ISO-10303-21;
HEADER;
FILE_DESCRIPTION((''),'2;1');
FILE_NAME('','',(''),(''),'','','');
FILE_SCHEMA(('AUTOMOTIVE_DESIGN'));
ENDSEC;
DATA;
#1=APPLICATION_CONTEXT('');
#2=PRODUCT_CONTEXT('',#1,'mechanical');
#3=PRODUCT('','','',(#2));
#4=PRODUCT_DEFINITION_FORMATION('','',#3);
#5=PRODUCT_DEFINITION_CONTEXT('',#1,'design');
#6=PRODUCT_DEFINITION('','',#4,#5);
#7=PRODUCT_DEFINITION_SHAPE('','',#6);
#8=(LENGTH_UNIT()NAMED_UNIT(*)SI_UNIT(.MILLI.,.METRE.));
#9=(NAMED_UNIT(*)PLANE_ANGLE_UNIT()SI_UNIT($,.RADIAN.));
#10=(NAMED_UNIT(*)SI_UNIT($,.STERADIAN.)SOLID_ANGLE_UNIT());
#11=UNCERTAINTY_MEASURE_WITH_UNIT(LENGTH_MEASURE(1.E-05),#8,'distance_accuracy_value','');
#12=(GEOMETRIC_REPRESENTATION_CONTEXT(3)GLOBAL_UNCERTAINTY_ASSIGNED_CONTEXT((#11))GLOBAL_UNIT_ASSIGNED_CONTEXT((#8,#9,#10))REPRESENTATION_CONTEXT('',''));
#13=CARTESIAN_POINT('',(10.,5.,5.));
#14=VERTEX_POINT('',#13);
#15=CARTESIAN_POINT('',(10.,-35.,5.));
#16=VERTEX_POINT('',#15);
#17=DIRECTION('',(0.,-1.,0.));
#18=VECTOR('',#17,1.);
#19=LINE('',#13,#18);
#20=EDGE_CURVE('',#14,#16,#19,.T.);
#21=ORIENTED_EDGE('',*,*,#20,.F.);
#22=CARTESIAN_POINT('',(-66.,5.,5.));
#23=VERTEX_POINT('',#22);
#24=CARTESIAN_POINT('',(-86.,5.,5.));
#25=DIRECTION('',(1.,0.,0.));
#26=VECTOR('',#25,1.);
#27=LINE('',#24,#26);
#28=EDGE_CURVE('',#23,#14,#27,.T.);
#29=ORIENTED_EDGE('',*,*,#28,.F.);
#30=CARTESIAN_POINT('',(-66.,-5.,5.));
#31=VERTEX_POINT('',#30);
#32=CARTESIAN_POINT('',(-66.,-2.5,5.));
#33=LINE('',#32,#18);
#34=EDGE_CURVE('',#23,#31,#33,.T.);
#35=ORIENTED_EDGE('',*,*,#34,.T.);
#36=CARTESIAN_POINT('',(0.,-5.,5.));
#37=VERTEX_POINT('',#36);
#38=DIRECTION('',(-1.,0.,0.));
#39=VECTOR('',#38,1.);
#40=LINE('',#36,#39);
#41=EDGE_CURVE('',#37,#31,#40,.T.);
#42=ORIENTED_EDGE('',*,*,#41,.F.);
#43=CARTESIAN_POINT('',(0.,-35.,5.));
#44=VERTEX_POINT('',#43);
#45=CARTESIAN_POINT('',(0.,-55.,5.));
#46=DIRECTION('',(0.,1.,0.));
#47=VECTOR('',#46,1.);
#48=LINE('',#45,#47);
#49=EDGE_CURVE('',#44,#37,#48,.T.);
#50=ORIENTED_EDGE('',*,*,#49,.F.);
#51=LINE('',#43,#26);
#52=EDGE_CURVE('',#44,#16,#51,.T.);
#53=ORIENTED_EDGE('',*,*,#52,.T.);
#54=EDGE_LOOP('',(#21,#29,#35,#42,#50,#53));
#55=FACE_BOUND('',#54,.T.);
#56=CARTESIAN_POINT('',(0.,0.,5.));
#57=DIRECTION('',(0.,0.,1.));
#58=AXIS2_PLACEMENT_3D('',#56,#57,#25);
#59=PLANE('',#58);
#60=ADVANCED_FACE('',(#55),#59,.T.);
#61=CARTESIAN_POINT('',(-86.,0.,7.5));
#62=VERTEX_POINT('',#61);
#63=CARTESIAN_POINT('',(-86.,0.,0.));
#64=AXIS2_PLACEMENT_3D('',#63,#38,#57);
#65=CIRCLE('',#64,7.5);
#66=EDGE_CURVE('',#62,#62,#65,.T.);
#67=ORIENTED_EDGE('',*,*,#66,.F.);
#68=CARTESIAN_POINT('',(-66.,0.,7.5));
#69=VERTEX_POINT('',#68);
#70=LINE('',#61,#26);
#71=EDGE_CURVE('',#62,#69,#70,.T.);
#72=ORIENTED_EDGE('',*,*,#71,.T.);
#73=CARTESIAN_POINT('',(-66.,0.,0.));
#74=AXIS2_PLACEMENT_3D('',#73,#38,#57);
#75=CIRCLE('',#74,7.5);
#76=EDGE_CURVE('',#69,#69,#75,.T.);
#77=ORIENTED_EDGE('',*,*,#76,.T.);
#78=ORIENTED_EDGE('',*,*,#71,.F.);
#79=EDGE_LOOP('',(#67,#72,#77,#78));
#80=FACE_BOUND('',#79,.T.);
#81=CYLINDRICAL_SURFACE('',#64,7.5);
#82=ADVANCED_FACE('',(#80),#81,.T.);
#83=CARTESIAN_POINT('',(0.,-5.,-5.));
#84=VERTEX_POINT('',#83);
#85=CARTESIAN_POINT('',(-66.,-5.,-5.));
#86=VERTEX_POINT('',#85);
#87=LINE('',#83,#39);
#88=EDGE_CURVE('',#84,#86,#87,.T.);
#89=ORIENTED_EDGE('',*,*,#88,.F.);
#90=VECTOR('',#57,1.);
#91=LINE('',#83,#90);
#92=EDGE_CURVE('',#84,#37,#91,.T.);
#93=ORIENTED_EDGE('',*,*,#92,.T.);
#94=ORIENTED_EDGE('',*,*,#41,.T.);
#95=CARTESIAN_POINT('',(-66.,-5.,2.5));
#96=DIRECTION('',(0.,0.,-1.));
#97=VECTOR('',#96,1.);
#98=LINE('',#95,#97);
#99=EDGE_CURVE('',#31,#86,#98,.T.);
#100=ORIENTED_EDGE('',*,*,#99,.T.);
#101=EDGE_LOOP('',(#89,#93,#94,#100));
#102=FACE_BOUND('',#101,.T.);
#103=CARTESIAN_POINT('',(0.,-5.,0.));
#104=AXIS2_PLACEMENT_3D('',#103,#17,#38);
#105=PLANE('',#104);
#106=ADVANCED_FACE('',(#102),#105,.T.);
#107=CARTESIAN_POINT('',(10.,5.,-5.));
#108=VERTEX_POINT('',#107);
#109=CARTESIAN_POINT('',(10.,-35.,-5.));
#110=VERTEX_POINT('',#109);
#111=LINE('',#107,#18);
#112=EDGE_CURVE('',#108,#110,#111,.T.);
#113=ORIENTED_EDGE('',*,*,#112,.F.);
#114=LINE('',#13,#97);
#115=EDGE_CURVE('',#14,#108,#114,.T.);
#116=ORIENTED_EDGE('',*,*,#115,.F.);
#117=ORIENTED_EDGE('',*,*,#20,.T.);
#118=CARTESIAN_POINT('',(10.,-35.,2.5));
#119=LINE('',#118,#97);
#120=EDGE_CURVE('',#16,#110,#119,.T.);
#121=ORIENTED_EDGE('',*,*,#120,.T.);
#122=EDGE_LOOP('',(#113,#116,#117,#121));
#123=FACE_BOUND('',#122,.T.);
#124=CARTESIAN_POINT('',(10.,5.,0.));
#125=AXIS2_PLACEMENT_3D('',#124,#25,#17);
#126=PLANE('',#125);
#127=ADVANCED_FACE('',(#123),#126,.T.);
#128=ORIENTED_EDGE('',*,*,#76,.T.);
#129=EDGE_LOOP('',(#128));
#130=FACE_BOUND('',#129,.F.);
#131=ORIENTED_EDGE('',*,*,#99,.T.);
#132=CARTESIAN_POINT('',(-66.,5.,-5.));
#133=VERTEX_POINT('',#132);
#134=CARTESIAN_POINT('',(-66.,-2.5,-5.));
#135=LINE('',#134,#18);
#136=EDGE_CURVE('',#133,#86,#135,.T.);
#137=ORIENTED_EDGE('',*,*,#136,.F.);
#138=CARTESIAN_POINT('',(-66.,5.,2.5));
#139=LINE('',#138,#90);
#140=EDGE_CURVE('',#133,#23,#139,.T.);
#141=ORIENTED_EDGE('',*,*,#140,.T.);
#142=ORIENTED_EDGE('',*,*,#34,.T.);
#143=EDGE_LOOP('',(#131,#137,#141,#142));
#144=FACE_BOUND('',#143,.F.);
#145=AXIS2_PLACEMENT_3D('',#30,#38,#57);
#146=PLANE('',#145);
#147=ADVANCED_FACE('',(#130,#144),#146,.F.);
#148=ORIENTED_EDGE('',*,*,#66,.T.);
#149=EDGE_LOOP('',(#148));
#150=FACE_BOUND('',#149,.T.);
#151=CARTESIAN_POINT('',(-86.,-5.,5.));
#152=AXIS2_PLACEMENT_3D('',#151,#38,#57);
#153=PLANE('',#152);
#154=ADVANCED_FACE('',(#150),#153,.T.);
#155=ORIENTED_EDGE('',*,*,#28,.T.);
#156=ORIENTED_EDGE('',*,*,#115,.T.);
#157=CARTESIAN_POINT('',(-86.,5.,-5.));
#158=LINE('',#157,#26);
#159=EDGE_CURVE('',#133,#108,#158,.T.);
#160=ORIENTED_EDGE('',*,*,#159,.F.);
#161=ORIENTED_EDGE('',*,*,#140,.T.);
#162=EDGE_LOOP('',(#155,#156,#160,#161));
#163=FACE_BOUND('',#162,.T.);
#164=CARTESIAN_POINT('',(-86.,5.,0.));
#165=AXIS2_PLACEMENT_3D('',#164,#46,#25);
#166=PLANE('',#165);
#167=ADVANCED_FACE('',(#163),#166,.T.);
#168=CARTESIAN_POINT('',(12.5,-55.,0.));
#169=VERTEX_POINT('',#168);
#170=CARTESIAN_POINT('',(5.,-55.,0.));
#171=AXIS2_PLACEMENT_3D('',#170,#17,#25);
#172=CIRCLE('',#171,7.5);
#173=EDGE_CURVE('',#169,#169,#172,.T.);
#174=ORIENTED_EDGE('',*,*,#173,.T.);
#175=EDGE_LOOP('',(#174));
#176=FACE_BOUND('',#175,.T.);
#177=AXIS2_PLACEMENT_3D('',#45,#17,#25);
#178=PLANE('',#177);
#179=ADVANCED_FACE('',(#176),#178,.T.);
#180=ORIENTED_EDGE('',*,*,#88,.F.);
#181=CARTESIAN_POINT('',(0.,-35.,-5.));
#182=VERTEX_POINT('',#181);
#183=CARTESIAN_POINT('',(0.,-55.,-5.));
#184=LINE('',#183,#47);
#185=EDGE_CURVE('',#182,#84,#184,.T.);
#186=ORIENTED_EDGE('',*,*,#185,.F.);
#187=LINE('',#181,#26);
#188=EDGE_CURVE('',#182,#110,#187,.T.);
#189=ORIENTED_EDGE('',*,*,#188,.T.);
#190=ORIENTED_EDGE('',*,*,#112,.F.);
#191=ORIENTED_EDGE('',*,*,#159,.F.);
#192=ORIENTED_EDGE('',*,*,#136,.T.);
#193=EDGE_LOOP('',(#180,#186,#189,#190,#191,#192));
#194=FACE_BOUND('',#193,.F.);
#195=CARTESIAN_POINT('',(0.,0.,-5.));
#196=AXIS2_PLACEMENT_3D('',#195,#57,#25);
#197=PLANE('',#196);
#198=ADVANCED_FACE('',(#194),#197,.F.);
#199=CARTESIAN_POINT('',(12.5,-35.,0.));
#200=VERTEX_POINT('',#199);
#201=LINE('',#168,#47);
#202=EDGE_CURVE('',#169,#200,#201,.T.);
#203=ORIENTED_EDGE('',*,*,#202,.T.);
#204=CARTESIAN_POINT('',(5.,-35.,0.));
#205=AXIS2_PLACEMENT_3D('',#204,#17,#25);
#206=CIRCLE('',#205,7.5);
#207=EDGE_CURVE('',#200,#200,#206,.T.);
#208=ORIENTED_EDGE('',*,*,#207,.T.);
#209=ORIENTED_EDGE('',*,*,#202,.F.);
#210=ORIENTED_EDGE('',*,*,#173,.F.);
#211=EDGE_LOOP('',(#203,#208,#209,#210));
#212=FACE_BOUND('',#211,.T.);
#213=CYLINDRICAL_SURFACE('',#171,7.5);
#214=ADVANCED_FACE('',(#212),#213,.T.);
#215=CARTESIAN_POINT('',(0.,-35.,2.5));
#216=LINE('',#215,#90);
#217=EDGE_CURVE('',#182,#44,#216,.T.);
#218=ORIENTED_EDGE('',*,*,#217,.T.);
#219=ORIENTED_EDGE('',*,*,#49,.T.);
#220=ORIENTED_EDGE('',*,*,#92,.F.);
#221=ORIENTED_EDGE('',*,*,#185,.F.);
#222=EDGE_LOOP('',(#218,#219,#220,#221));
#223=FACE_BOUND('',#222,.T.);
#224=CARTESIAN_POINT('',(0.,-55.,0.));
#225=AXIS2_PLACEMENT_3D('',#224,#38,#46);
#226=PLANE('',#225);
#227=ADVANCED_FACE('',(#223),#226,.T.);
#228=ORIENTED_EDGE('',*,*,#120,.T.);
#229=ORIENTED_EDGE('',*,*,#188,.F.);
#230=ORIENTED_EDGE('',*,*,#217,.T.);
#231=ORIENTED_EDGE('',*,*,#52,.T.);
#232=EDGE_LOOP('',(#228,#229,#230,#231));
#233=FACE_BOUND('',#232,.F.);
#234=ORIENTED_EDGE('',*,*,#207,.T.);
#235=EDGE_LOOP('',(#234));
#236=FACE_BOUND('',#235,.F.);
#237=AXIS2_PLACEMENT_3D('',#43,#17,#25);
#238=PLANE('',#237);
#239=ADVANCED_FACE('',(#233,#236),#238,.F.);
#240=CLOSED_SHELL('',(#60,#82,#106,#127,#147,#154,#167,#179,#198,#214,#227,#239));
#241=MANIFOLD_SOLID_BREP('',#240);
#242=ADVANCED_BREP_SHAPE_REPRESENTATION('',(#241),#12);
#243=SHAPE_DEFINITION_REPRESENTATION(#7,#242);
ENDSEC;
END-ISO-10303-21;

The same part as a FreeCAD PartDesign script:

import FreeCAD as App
import Part
import Sketcher
from FreeCAD import Vector

doc = App.newDocument("Part")
body = doc.addObject("PartDesign::Body", "Body")

sketch1 = doc.addObject("Sketcher::SketchObject", "Sketch")
body.addObject(sketch1)
sketch1.AttachmentSupport = (doc.XY_Plane, [""])
sketch1.MapMode = "FlatFace"
sketch1.addGeometry(Part.LineSegment(Vector(-86, 5, 0), Vector(-86, -5, 0)), False)
sketch1.addGeometry(Part.LineSegment(Vector(-86, -5, 0), Vector(0, -5, 0)), False)
sketch1.addGeometry(Part.LineSegment(Vector(0, -5, 0), Vector(0, -55, 0)), False)
sketch1.addGeometry(Part.LineSegment(Vector(0, -55, 0), Vector(10, -55, 0)), False)
sketch1.addGeometry(Part.LineSegment(Vector(10, -55, 0), Vector(10, 5, 0)), False)
sketch1.addGeometry(Part.LineSegment(Vector(10, 5, 0), Vector(-86, 5, 0)), False)
sketch1.addConstraint(Sketcher.Constraint("Coincident", 0, 2, 1, 1))
sketch1.addConstraint(Sketcher.Constraint("Coincident", 1, 2, 2, 1))
sketch1.addConstraint(Sketcher.Constraint("Coincident", 2, 2, 3, 1))
sketch1.addConstraint(Sketcher.Constraint("Coincident", 3, 2, 4, 1))
sketch1.addConstraint(Sketcher.Constraint("Coincident", 4, 2, 5, 1))
sketch1.addConstraint(Sketcher.Constraint("Coincident", 5, 2, 0, 1))
sketch1.addConstraint(Sketcher.Constraint("Vertical", 0))
sketch1.addConstraint(Sketcher.Constraint("Horizontal", 1))
sketch1.addConstraint(Sketcher.Constraint("Vertical", 2))
sketch1.addConstraint(Sketcher.Constraint("Horizontal", 3))
sketch1.addConstraint(Sketcher.Constraint("Vertical", 4))
sketch1.addConstraint(Sketcher.Constraint("Horizontal", 5))
sketch1.addConstraint(Sketcher.Constraint("PointOnObject", 1, 2, -2))
sketch1.addConstraint(Sketcher.Constraint("Equal", 3, 0))
sketch1.addConstraint(Sketcher.Constraint("DistanceX", 3, 1, 3, 2, 10.0))
sketch1.addConstraint(Sketcher.Constraint("DistanceX", 5, 2, 5, 1, 96.0))
sketch1.addConstraint(Sketcher.Constraint("DistanceY", 4, 1, 4, 2, 60.0))
sketch1.addConstraint(Sketcher.Constraint("DistanceY", 0, 2, -1, 1, 5.0))
pad1 = doc.addObject("PartDesign::Pad", "Pad")
body.addObject(pad1)
pad1.Profile = sketch1
pad1.Type = "TwoLengths"
pad1.Length = 5
pad1.Length2 = 5

sketch2 = doc.addObject("Sketcher::SketchObject", "Sketch001")
body.addObject(sketch2)
sketch2.AttachmentSupport = (doc.XZ_Plane, [""])
sketch2.MapMode = "FlatFace"
sketch2.AttachmentOffset = App.Placement(Vector(0, 0, 55), App.Rotation())
sketch2.addGeometry(Part.Circle(Vector(5, 0, 0), Vector(0, 0, 1), 7.5), False)
sketch2.addConstraint(Sketcher.Constraint("PointOnObject", 0, 3, -1))
sketch2.addConstraint(Sketcher.Constraint("Diameter", 0, 15.0))
sketch2.addConstraint(Sketcher.Constraint("DistanceX", -1, 1, 0, 3, 5.0))
pad2 = doc.addObject("PartDesign::Pad", "Pad001")
body.addObject(pad2)
pad2.Profile = sketch2
pad2.Length = 20
pad2.Reversed = True

sketch3 = doc.addObject("Sketcher::SketchObject", "Sketch002")
body.addObject(sketch3)
sketch3.AttachmentSupport = (doc.YZ_Plane, [""])
sketch3.MapMode = "FlatFace"
sketch3.AttachmentOffset = App.Placement(Vector(0, 0, -86), App.Rotation())
sketch3.addGeometry(Part.Circle(Vector(0, 0, 0), Vector(0, 0, 1), 7.5), False)
sketch3.addConstraint(Sketcher.Constraint("Coincident", 0, 3, -1, 1))
sketch3.addConstraint(Sketcher.Constraint("Diameter", 0, 15.0))
pad3 = doc.addObject("PartDesign::Pad", "Pad002")
body.addObject(pad3)
pad3.Profile = sketch3
pad3.Length = 20

doc.recompute()
